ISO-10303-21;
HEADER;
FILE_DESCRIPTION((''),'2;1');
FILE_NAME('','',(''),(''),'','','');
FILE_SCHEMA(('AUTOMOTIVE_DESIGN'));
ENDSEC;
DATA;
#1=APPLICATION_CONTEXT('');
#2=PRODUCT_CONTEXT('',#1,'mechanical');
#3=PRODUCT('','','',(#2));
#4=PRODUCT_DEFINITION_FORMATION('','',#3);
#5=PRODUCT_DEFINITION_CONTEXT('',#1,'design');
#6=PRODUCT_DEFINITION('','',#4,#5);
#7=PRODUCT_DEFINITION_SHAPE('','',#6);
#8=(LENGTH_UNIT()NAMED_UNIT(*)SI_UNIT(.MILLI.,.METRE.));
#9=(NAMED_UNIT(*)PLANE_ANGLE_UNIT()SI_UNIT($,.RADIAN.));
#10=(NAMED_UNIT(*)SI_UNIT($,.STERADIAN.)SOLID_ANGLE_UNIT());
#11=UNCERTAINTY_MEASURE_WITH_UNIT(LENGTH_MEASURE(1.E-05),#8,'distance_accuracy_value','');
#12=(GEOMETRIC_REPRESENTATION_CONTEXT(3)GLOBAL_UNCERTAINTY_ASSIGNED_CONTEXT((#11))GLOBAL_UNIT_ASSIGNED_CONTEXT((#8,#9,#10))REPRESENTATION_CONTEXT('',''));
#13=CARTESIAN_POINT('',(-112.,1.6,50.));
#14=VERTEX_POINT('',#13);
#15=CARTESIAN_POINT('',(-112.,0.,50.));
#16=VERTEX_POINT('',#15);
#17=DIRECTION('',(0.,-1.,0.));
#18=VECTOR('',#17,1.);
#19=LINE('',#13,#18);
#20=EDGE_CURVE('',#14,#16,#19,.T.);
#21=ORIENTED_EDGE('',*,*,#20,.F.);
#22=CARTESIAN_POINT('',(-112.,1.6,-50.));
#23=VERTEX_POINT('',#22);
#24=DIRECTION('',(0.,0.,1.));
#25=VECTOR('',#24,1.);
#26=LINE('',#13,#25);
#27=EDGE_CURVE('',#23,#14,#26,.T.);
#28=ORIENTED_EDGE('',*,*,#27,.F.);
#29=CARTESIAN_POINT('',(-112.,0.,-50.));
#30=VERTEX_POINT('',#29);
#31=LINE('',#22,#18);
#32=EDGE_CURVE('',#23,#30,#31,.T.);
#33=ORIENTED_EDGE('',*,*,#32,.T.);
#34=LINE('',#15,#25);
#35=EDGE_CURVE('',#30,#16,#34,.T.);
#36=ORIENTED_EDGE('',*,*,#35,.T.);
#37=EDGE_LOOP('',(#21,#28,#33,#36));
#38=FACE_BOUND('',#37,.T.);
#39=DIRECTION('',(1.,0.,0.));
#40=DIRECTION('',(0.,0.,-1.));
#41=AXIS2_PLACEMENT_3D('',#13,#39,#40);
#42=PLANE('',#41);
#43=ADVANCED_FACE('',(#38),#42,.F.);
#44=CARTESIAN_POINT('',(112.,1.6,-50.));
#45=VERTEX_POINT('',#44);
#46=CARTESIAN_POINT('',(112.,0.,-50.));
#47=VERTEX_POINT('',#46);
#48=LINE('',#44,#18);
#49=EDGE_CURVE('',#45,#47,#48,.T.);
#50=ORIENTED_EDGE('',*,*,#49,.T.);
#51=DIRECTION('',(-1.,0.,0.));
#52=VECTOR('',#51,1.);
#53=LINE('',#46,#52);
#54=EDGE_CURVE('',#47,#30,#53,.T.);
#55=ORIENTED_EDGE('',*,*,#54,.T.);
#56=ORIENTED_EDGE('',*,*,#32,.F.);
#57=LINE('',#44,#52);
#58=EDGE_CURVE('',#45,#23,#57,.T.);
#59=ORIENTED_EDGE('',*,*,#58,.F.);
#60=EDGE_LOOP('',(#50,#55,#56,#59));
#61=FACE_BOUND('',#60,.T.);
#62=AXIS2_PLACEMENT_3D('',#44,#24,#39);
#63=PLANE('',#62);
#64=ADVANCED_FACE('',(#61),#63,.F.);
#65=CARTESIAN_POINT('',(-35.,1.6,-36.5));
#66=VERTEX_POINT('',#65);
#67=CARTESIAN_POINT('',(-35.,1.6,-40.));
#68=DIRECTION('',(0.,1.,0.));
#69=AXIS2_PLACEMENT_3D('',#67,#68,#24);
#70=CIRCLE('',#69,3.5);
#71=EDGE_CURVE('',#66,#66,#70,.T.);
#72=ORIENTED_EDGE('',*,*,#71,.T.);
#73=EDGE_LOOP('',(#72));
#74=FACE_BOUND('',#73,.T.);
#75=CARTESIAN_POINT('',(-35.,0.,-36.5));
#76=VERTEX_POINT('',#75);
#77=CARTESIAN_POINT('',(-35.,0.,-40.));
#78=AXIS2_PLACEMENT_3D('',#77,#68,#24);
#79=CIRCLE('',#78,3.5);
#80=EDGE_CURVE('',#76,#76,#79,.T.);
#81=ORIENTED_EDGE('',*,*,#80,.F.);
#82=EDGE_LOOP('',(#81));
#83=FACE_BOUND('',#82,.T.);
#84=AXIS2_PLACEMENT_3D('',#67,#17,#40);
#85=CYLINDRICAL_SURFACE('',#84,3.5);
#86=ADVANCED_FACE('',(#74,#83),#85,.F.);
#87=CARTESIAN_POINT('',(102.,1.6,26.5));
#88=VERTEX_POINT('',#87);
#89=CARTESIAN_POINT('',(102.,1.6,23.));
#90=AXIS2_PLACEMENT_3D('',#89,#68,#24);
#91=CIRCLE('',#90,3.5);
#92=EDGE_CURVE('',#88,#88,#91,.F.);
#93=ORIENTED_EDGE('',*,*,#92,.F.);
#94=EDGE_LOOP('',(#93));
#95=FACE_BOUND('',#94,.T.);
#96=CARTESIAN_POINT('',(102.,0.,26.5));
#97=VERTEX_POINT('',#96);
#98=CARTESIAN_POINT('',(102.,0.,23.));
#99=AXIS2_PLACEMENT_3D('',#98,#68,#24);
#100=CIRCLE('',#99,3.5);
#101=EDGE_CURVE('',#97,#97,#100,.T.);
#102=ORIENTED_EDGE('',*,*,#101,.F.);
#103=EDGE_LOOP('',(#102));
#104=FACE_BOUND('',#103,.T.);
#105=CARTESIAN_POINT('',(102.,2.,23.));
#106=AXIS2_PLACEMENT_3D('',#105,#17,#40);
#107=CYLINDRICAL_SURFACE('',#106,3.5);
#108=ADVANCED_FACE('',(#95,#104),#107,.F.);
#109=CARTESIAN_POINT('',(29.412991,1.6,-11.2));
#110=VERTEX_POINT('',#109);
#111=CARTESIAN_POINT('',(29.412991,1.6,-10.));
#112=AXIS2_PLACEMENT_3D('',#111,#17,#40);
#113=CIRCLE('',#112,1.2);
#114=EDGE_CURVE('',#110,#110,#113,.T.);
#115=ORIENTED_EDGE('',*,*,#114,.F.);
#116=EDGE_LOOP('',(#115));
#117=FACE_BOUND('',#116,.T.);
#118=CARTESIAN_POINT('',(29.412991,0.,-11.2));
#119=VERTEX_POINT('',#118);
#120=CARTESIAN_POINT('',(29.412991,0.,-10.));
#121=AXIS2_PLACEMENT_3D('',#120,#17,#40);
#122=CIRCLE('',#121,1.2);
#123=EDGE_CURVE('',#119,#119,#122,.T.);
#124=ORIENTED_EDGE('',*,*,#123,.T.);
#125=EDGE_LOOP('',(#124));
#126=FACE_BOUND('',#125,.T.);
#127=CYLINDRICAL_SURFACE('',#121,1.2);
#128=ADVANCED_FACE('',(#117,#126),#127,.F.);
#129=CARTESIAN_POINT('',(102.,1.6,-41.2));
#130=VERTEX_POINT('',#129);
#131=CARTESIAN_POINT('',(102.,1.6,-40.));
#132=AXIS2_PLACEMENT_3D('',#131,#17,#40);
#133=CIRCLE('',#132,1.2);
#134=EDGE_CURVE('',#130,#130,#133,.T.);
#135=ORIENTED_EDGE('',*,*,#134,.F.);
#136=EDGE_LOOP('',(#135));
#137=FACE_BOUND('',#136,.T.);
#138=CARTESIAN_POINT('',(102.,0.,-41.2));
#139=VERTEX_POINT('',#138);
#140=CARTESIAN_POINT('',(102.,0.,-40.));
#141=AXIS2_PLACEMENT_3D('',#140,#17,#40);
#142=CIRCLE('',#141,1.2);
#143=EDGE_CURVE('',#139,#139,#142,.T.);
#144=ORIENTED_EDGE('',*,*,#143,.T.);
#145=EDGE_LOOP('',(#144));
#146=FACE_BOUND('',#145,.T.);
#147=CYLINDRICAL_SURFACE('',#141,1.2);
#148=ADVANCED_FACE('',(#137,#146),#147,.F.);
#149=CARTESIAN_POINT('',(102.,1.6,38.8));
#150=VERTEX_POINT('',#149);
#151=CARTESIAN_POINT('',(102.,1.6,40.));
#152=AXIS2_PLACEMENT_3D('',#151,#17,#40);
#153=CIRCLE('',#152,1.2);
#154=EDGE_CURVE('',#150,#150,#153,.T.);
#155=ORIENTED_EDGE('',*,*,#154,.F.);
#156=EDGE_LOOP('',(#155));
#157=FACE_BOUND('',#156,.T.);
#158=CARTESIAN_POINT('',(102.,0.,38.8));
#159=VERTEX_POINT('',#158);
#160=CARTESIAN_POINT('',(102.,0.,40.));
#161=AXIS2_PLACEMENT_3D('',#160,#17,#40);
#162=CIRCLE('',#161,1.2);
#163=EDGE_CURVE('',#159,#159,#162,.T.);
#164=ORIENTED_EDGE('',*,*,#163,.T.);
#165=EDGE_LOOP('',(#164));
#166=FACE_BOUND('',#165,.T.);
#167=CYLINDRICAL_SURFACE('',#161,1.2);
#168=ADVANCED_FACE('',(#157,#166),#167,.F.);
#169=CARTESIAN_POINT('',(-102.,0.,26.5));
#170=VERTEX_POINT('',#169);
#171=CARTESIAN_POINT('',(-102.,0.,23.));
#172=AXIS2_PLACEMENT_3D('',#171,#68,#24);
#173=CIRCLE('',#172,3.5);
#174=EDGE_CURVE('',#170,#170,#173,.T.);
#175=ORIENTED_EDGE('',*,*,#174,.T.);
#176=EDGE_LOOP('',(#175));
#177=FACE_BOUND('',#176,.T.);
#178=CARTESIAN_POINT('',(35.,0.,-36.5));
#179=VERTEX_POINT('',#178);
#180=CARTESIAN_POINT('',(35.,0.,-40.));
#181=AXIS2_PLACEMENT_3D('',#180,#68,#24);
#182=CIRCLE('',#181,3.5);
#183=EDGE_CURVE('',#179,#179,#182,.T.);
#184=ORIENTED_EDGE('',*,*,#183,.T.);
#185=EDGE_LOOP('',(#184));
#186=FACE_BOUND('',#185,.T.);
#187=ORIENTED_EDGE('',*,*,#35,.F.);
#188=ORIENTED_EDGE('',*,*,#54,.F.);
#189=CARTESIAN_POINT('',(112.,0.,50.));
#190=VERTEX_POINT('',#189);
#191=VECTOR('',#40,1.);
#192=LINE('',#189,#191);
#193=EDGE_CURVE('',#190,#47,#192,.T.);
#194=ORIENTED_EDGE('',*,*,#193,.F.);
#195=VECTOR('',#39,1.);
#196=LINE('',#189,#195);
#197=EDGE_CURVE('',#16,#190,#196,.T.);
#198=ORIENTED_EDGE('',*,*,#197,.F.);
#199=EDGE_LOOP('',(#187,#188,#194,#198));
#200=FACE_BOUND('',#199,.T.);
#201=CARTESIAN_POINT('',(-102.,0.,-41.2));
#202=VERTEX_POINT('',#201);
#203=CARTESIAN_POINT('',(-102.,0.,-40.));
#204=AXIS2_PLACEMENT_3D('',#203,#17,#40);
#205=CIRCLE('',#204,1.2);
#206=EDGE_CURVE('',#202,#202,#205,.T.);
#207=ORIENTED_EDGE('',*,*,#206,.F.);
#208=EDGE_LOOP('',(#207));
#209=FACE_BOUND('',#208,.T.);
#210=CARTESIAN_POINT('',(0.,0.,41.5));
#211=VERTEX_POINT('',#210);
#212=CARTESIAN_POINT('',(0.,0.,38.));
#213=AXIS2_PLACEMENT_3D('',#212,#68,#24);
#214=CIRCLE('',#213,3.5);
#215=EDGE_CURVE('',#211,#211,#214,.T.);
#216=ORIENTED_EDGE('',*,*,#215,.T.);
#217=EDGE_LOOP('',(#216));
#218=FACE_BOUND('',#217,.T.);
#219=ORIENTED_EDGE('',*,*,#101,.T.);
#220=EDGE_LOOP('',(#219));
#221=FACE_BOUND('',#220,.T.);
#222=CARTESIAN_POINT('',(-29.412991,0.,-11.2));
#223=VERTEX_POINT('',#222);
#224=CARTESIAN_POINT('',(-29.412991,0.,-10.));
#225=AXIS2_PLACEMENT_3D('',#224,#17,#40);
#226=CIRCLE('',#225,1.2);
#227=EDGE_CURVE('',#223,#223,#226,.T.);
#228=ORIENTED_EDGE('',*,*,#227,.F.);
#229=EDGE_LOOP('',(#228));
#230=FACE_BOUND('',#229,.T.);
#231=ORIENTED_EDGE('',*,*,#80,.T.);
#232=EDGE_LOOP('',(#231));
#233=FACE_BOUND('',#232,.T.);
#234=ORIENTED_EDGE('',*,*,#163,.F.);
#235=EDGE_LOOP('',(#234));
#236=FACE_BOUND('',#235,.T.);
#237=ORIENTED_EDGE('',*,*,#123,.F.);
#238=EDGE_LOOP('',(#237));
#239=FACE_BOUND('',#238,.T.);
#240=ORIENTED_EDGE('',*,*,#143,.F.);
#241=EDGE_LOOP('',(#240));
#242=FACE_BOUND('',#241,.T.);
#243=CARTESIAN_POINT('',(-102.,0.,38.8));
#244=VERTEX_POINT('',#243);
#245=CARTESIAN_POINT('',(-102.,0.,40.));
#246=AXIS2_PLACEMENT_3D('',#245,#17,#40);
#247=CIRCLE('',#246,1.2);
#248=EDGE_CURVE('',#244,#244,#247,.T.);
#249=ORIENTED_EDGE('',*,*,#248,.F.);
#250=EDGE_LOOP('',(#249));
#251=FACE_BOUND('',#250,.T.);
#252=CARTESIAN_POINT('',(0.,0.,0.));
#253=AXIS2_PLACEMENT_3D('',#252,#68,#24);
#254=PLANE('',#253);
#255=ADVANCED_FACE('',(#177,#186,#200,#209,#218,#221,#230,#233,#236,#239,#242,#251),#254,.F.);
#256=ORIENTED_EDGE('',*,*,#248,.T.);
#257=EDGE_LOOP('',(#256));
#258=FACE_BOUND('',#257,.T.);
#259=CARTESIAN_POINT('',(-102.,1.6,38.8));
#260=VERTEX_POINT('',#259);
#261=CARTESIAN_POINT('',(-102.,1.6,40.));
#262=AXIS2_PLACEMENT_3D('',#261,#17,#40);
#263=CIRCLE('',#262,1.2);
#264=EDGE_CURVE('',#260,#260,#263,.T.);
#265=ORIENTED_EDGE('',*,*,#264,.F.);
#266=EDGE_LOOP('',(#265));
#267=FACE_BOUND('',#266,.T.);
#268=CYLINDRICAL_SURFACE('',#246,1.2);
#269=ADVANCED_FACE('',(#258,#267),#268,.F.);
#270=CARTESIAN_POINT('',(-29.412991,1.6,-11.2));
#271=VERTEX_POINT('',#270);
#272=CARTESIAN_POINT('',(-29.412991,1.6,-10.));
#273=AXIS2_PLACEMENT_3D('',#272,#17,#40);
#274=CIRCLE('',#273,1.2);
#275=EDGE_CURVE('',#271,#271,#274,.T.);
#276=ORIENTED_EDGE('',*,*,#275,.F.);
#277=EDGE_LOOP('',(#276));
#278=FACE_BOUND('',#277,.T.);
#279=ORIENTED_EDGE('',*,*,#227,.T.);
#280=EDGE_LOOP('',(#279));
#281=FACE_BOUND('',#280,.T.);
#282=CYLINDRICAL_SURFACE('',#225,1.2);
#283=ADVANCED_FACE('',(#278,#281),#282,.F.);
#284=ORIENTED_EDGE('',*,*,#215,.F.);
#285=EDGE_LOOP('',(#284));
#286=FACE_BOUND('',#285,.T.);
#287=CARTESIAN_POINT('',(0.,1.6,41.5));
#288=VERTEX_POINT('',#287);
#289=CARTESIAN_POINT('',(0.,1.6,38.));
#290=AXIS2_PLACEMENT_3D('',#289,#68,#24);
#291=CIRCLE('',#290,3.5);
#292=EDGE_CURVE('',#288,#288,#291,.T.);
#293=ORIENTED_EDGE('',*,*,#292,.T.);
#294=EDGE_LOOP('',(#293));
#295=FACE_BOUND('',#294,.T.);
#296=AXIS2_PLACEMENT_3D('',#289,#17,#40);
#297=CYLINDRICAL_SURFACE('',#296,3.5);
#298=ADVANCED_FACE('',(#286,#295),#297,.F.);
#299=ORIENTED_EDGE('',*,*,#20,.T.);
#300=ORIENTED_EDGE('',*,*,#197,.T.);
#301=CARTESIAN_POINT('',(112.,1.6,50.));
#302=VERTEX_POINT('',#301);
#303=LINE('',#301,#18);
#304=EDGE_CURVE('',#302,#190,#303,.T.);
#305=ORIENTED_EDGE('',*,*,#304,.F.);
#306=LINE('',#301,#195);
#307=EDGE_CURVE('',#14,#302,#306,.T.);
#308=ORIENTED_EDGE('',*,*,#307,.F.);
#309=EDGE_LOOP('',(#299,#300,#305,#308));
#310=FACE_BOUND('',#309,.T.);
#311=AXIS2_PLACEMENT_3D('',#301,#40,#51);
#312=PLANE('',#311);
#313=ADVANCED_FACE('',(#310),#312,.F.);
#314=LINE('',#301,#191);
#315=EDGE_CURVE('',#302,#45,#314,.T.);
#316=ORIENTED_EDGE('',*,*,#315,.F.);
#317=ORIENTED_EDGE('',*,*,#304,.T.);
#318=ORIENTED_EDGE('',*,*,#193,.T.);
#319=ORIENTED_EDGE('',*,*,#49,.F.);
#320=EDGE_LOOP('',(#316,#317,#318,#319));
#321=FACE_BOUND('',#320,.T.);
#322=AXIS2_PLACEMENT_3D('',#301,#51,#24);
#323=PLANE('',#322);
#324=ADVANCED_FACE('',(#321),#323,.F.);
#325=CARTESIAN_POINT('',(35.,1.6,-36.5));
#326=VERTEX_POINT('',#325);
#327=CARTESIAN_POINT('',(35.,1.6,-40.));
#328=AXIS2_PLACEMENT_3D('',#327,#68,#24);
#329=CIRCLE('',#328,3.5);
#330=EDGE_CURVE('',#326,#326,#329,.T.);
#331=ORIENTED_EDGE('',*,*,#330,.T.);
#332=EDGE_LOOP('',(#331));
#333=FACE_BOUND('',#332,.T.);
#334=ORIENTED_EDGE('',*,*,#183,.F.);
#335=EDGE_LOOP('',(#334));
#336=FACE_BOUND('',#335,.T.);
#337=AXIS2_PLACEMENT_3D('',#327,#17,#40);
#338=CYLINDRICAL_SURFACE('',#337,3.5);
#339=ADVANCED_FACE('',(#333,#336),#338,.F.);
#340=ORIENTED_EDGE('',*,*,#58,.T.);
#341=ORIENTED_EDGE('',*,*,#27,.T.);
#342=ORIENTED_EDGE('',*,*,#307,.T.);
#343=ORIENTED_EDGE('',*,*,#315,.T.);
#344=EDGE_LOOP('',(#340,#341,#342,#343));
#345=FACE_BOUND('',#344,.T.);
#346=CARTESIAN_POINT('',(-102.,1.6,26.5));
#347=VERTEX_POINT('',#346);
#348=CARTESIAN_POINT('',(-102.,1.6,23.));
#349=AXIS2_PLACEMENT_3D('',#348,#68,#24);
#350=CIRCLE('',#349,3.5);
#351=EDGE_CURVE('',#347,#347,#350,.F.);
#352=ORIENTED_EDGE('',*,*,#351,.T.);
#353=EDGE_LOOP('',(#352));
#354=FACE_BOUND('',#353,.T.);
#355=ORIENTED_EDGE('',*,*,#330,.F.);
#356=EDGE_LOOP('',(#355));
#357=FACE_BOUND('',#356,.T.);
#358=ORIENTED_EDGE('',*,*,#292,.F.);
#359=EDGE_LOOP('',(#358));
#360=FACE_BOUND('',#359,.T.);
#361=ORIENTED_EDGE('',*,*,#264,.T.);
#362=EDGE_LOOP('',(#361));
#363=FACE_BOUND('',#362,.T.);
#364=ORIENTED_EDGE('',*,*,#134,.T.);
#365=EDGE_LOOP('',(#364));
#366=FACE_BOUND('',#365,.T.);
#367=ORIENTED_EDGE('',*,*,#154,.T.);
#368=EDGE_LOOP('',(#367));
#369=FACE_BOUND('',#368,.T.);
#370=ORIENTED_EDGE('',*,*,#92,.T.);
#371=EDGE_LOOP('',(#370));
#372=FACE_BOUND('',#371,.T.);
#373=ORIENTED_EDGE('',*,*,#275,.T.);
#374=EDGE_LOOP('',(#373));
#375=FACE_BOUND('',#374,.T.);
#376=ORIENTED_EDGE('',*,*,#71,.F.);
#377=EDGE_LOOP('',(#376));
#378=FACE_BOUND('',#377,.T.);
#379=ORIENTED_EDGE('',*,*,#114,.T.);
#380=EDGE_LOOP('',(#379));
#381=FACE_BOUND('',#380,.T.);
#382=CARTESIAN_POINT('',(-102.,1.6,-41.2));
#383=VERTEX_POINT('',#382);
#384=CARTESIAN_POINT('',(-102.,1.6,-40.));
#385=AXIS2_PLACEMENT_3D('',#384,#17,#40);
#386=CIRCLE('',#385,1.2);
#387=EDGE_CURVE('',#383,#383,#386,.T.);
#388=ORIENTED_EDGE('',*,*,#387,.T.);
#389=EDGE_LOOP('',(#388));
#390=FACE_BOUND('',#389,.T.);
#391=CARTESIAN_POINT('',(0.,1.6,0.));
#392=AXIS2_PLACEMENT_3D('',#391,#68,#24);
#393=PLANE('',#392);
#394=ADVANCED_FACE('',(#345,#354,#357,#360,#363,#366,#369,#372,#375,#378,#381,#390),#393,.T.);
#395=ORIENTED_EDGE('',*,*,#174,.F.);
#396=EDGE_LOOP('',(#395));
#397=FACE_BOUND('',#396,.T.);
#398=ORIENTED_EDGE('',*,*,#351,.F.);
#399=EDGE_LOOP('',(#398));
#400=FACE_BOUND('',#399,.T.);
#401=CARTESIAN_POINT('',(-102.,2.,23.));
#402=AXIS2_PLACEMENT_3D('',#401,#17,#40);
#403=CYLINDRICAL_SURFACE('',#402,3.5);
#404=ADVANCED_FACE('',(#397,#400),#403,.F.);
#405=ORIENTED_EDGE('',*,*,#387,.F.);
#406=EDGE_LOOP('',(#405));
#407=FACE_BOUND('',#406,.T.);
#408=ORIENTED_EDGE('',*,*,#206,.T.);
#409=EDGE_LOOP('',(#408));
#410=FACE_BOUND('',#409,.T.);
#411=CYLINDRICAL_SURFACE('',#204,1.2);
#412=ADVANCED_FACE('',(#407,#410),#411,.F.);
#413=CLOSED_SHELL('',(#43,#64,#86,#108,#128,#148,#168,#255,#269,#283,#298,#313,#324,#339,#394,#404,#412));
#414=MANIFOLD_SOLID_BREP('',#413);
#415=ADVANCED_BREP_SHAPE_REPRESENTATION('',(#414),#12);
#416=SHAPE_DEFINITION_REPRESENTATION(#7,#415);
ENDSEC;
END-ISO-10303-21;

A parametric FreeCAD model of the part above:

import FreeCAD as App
import Part
import Sketcher
from FreeCAD import Vector


def add_polygon(sketch, points):
    """Adds a closed chain of lines whose ends are joined by coincident constraints."""
    first, n = sketch.GeometryCount, len(points)
    for a, b in zip(points, points[1:] + points[:1]):
        sketch.addGeometry(Part.LineSegment(App.Vector(*a, 0), App.Vector(*b, 0)), False)
    for i in range(n):
        sketch.addConstraint(Sketcher.Constraint("Coincident", first + i, 2, first + (i + 1) % n, 1))

doc = App.newDocument("Part")
body = doc.addObject("PartDesign::Body", "Body")

# Sketch on XZ plane
sketch1 = body.newObject("Sketcher::SketchObject", "Sketch")
sketch1.AttachmentSupport = (doc.getObject("XZ_Plane"), [""])
sketch1.MapMode = "FlatFace"
add_polygon(sketch1, [(-112, -50), (-112, 50), (112, 50), (112, -50)])  # lines 0-3
sketch1.addConstraint([
    Sketcher.Constraint("Vertical", 0),
    Sketcher.Constraint("Horizontal", 1),
    Sketcher.Constraint("Vertical", 2),
    Sketcher.Constraint("Horizontal", 3),
    Sketcher.Constraint("Symmetric", 0, 2, 2, 2, -1, 1),
    Sketcher.Constraint("DistanceX", 1, 1, 1, 2, 224.0),
    Sketcher.Constraint("DistanceY", 0, 1, 0, 2, 100.0),
])
pad1 = body.newObject("PartDesign::Pad", "Pad")
pad1.Profile = sketch1
pad1.Length = 1.6
pad1.Reversed = True

# Sketch on XZ plane
sketch2 = body.newObject("Sketcher::SketchObject", "Sketch001")
sketch2.AttachmentSupport = (doc.getObject("XZ_Plane"), [""])
sketch2.MapMode = "FlatFace"
sketch2.addGeometry(Part.Circle(Vector(-102, -40, 0), Vector(0, 0, 1), 1.2), False)
sketch2.addConstraint([
    Sketcher.Constraint("Diameter", 0, 2.4),
    Sketcher.Constraint("DistanceX", 0, 3, -1, 1, 102.0),
    Sketcher.Constraint("DistanceY", 0, 3, -1, 1, 40.0),
])
doc.recompute()
hole = body.newObject("PartDesign::Hole", "Hole")
hole.Profile = sketch2
hole.ThreadType = "None"
hole.Diameter = 2.4
hole.DepthType = "ThroughAll"
doc.recompute()

mirrored = body.newObject("PartDesign::Mirrored", "Mirrored")
mirrored.Originals = [hole]
mirrored.MirrorPlane = (doc.getObject("YZ_Plane"), [""])
body.Tip = mirrored
doc.recompute()

mirrored2 = body.newObject("PartDesign::Mirrored", "Mirrored001")
mirrored2.Originals = [hole]
mirrored2.MirrorPlane = (doc.getObject("XY_Plane"), [""])
body.Tip = mirrored2

# Sketch on XZ plane
sketch3 = body.newObject("Sketcher::SketchObject", "Sketch002")
sketch3.AttachmentSupport = (doc.getObject("XZ_Plane"), [""])
sketch3.MapMode = "FlatFace"
sketch3.addGeometry(Part.Circle(Vector(102, 40, 0), Vector(0, 0, 1), 1.2), False)
sketch3.addConstraint([
    Sketcher.Constraint("Diameter", 0, 2.4),
    Sketcher.Constraint("DistanceX", -1, 1, 0, 3, 102.0),
    Sketcher.Constraint("DistanceY", -1, 1, 0, 3, 40.0),
])
doc.recompute()
hole2 = body.newObject("PartDesign::Hole", "Hole001")
hole2.Profile = sketch3
hole2.ThreadType = "None"
hole2.Diameter = 2.4
hole2.DepthType = "ThroughAll"

# Sketch on XZ plane
sketch4 = body.newObject("Sketcher::SketchObject", "Sketch003")
sketch4.AttachmentSupport = (doc.getObject("XZ_Plane"), [""])
sketch4.MapMode = "FlatFace"
sketch4.addGeometry([
    Part.Circle(Vector(-35, -40, 0), Vector(0, 0, 1), 3.5),
    Part.Circle(Vector(35, -40, 0), Vector(0, 0, 1), 3.5),
    Part.Circle(Vector(0, 38, 0), Vector(0, 0, 1), 3.5),
], False)
sketch4.addConstraint([
    Sketcher.Constraint("Equal", 0, 1),
    Sketcher.Constraint("Equal", 1, 2),
    Sketcher.Constraint("Symmetric", 0, 3, 1, 3, -2),
    Sketcher.Constraint("PointOnObject", 2, 3, -2),
    Sketcher.Constraint("Diameter", 0, 7.0),
    Sketcher.Constraint("DistanceX", 0, 3, -1, 1, 35.0),
    Sketcher.Constraint("DistanceY", 0, 3, -1, 1, 40.0),
    Sketcher.Constraint("DistanceY", -1, 1, 2, 3, 38.0),
])
pocket1 = body.newObject("PartDesign::Pocket", "Pocket")
pocket1.Profile = sketch4
pocket1.Type = "ThroughAll"

# Sketch on XZ plane
sketch5 = body.newObject("Sketcher::SketchObject", "Sketch004")
sketch5.AttachmentSupport = (doc.getObject("XZ_Plane"), [""])
sketch5.MapMode = "FlatFace"
sketch5.addGeometry([
    Part.Circle(Vector(-102, 23, 0), Vector(0, 0, 1), 1.2),
    Part.Circle(Vector(-29.412991, -10, 0), Vector(0, 0, 1), 1.2),
    Part.Circle(Vector(29.412991, -10, 0), Vector(0, 0, 1), 1.2),
    Part.Circle(Vector(102, 23, 0), Vector(0, 0, 1), 1.2),
], False)
sketch5.addConstraint([
    Sketcher.Constraint("Equal", 0, 1),
    Sketcher.Constraint("Equal", 1, 2),
    Sketcher.Constraint("Equal", 2, 3),
    Sketcher.Constraint("Symmetric", 1, 3, 2, 3, -2),
    Sketcher.Constraint("Symmetric", 0, 3, 3, 3, -2),
    Sketcher.Constraint("Diameter", 0, 2.4),
    Sketcher.Constraint("DistanceX", 0, 3, -1, 1, 102.0),
    Sketcher.Constraint("DistanceY", -1, 1, 0, 3, 23.0),
    Sketcher.Constraint("DistanceY", 1, 3, -1, 1, 10.0),
    Sketcher.Constraint("DistanceX", 1, 3, -1, 1, 29.412991),
])
doc.recompute()
hole3 = body.newObject("PartDesign::Hole", "Hole002")
hole3.Profile = sketch5
hole3.ThreadType = "None"
hole3.Diameter = 2.4
hole3.DepthType = "ThroughAll"

# Sketch on XZ plane
sketch6 = body.newObject("Sketcher::SketchObject", "Sketch005")
sketch6.AttachmentSupport = (doc.getObject("XZ_Plane"), [""])
sketch6.MapMode = "FlatFace"
sketch6.addGeometry([
    Part.Circle(Vector(-102, 23, 0), Vector(0, 0, 1), 3.5),
    Part.Circle(Vector(102, 23, 0), Vector(0, 0, 1), 3.5),
], False)
sketch6.addConstraint([
    Sketcher.Constraint("Equal", 0, 1),
    Sketcher.Constraint("Symmetric", 0, 3, 1, 3, -2),
    Sketcher.Constraint("Diameter", 0, 7.0),
    Sketcher.Constraint("DistanceX", 0, 3, -1, 1, 102.0),
    Sketcher.Constraint("DistanceY", -1, 1, 0, 3, 23.0),
])
pocket2 = body.newObject("PartDesign::Pocket", "Pocket001")
pocket2.Profile = sketch6
pocket2.Length = 2

doc.recompute()
